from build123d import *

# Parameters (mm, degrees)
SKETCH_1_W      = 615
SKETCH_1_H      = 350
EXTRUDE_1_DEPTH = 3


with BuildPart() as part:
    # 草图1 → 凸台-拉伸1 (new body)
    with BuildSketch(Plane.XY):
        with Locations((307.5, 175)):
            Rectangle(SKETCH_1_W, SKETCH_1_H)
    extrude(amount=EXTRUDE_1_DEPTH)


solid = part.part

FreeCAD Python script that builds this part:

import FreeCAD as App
import Part
import Sketcher
from FreeCAD import Vector
Q = App.Units.Quantity


def add_polygon(sketch, points):
    """Adds a closed chain of lines whose ends are joined by coincident constraints."""
    first, n = sketch.GeometryCount, len(points)
    for a, b in zip(points, points[1:] + points[:1]):
        sketch.addGeometry(Part.LineSegment(App.Vector(*a, 0), App.Vector(*b, 0)), False)
    for i in range(n):
        sketch.addConstraint(Sketcher.Constraint("Coincident", first + i, 2, first + (i + 1) % n, 1))

doc = App.newDocument("Part")
body = doc.addObject("PartDesign::Body", "Body")

sketch1 = body.newObject("Sketcher::SketchObject", "Sketch")
sketch1.AttachmentSupport = (doc.getObject("XY_Plane"), [""])
sketch1.MapMode = "FlatFace"
add_polygon(sketch1, [(0, 350), (0, 0), (615, 0), (615, 350)])
sketch1.addConstraint(Sketcher.Constraint("Vertical", 0))
sketch1.addConstraint(Sketcher.Constraint("Horizontal", 1))
sketch1.addConstraint(Sketcher.Constraint("Vertical", 2))
sketch1.addConstraint(Sketcher.Constraint("Horizontal", 3))
sketch1.addConstraint(Sketcher.Constraint("Coincident", 0, 2, -1, 1))
sketch1.addConstraint(Sketcher.Constraint("DistanceX", 1, 1, 1, 2, Q("615 mm")))
sketch1.addConstraint(Sketcher.Constraint("DistanceY", 0, 2, 0, 1, Q("350 mm")))
pad1 = body.newObject("PartDesign::Pad", "Pad")
pad1.Profile = sketch1
pad1.Length = 3

doc.recompute()
